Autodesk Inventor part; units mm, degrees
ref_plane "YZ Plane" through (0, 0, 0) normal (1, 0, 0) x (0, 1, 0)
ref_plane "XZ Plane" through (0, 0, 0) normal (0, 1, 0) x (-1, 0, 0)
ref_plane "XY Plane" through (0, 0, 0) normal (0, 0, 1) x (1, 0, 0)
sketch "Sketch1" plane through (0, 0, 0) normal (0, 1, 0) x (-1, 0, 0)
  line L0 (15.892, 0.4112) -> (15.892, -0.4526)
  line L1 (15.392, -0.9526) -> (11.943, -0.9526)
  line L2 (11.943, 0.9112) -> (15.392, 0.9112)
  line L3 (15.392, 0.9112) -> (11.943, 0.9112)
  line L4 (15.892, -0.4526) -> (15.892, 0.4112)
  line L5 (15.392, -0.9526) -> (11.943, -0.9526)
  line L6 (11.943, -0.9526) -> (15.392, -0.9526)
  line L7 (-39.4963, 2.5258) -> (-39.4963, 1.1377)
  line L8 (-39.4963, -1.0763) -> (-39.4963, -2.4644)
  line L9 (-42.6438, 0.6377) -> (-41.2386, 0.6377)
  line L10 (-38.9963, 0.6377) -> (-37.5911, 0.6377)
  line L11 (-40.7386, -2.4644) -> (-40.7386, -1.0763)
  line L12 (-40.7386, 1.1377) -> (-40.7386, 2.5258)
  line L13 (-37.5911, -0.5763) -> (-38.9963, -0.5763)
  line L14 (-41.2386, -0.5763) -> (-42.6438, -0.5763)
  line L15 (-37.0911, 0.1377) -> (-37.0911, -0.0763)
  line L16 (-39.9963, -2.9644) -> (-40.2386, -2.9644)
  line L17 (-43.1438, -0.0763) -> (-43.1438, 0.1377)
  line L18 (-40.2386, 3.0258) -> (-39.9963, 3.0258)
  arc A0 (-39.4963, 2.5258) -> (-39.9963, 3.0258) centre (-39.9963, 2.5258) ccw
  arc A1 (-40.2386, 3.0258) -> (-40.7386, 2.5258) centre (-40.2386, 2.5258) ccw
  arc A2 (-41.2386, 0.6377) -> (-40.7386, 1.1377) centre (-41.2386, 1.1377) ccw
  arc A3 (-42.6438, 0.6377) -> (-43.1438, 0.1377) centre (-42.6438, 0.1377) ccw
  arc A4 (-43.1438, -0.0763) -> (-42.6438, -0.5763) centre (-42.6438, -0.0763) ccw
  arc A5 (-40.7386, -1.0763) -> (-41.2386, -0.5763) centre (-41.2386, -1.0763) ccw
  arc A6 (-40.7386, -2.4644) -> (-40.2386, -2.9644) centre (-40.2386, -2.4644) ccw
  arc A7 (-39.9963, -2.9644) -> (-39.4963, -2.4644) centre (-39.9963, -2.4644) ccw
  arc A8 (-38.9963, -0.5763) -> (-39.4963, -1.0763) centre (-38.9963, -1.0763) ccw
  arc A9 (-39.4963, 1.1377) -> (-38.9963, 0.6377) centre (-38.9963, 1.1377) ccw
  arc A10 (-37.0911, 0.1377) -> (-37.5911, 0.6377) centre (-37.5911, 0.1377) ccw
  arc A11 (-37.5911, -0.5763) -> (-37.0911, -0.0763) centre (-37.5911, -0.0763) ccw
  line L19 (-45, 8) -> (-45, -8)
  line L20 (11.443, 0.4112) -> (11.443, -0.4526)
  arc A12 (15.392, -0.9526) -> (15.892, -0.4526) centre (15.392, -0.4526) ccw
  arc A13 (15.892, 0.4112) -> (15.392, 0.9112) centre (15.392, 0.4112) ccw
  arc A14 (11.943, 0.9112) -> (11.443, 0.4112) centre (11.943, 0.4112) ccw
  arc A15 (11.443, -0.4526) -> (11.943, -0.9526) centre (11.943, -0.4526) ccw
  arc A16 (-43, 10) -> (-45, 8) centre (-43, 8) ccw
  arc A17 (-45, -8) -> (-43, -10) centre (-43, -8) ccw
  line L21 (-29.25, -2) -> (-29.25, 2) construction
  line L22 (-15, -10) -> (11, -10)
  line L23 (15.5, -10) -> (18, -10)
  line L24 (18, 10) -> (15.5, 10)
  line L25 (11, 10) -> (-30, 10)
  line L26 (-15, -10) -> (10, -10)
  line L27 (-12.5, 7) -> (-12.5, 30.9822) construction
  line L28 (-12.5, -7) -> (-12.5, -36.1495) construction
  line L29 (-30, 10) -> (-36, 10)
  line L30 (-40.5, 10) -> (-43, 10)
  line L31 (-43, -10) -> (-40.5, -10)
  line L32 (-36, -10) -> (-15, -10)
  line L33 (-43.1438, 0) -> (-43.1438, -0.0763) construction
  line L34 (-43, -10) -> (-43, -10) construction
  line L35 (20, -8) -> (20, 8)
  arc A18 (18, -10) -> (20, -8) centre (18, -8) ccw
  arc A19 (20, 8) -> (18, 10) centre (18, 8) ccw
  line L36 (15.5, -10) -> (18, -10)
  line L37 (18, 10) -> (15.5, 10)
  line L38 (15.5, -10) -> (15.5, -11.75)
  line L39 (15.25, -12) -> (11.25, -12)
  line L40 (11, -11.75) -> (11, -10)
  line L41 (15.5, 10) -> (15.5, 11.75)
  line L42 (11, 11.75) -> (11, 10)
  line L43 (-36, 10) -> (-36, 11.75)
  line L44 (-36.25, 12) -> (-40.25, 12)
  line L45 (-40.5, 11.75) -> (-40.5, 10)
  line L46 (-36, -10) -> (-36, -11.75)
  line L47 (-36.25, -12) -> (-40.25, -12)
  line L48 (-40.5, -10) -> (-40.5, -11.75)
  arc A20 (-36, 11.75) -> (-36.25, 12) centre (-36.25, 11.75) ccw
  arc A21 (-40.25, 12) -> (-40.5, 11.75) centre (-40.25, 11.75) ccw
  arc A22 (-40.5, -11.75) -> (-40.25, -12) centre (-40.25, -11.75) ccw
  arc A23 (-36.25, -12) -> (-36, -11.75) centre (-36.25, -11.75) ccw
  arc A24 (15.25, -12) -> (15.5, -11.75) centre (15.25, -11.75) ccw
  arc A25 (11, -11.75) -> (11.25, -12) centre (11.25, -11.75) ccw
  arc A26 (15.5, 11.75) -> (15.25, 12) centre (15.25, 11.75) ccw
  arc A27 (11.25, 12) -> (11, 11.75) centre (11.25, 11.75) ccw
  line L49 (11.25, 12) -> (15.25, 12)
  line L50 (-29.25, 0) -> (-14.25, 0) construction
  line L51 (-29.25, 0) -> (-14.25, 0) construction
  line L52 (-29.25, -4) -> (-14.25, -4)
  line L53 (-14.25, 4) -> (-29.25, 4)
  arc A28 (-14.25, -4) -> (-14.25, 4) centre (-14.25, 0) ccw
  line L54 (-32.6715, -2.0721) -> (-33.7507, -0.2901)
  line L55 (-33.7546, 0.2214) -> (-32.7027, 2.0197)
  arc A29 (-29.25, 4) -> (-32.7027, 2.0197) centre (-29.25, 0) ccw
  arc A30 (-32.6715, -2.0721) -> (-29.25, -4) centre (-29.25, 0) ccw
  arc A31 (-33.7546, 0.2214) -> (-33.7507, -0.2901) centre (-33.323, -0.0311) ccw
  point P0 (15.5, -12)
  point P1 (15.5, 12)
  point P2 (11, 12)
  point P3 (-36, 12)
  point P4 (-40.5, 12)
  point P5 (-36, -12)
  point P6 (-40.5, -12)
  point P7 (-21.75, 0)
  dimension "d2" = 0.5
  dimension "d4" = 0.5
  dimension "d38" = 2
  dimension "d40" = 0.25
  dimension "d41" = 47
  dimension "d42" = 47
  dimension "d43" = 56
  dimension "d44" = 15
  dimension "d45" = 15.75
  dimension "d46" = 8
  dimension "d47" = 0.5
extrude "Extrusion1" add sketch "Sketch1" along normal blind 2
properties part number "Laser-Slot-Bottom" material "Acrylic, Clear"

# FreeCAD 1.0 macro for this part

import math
import FreeCAD as App
import Part
import Sketcher
from FreeCAD import Vector
Q = App.Units.Quantity

doc = App.newDocument("Part")
params = doc.addObject("Spreadsheet::Sheet", "Params")
for row, (alias, value) in enumerate([
    ("sketch1_radius", "2 mm"),
    ("sketch1_radius2", "4 mm"),
    ("sketch1_radius3", "0.5 mm"),
    ("sketch1_width", "47 mm"),
    ("sketch1_width2", "15 mm"),
    ("pad1_length", "2 mm"),
], start=1):
    params.set(f"A{row}", alias)
    params.set(f"B{row}", "=" + value)
    params.setAlias(f"B{row}", alias)

body = doc.addObject("PartDesign::Body", "Body")

sketch1 = doc.addObject("Sketcher::SketchObject", "Sketch")
body.addObject(sketch1)
sketch1.AttachmentSupport = (doc.XZ_Plane, [""])
sketch1.MapMode = "FlatFace"
sketch1.addGeometry([
    Part.ArcOfCircle(Part.Circle(Vector(43, 8, 0), Vector(0, 0, 1), 2), math.radians(0), math.radians(90)),
    Part.LineSegment(Vector(45, 8, 0), Vector(45, -8, 0)),
    Part.ArcOfCircle(Part.Circle(Vector(43, -8, 0), Vector(0, 0, 1), 2), math.radians(-90), math.radians(0)),
    Part.LineSegment(Vector(43, -10, 0), Vector(40.5, -10, 0)),
    Part.LineSegment(Vector(40.5, -10, 0), Vector(40.5, -11.75, 0)),
    Part.ArcOfCircle(Part.Circle(Vector(40.25, -11.75, 0), Vector(0, 0, 1), 0.25), math.radians(-90), math.radians(0)),
    Part.LineSegment(Vector(40.25, -12, 0), Vector(36.25, -12, 0)),
    Part.ArcOfCircle(Part.Circle(Vector(36.25, -11.75, 0), Vector(0, 0, 1), 0.25), math.radians(180), math.radians(270)),
    Part.LineSegment(Vector(36, -11.75, 0), Vector(36, -10, 0)),
    Part.LineSegment(Vector(36, -10, 0), Vector(-11, -10, 0)),
    Part.LineSegment(Vector(-11, -10, 0), Vector(-11, -11.75, 0)),
    Part.ArcOfCircle(Part.Circle(Vector(-11.25, -11.75, 0), Vector(0, 0, 1), 0.25), math.radians(-90), math.radians(0)),
    Part.LineSegment(Vector(-11.25, -12, 0), Vector(-15.25, -12, 0)),
    Part.ArcOfCircle(Part.Circle(Vector(-15.25, -11.75, 0), Vector(0, 0, 1), 0.25), math.radians(180), math.radians(270)),
    Part.LineSegment(Vector(-15.5, -11.75, 0), Vector(-15.5, -10, 0)),
    Part.LineSegment(Vector(-15.5, -10, 0), Vector(-18, -10, 0)),
    Part.ArcOfCircle(Part.Circle(Vector(-18, -8, 0), Vector(0, 0, 1), 2), math.radians(180), math.radians(270)),
    Part.LineSegment(Vector(-20, -8, 0), Vector(-20, 8, 0)),
    Part.ArcOfCircle(Part.Circle(Vector(-18, 8, 0), Vector(0, 0, 1), 2), math.radians(90), math.radians(180)),
    Part.LineSegment(Vector(-18, 10, 0), Vector(-15.5, 10, 0)),
    Part.LineSegment(Vector(-15.5, 10, 0), Vector(-15.5, 11.75, 0)),
    Part.ArcOfCircle(Part.Circle(Vector(-15.25, 11.75, 0), Vector(0, 0, 1), 0.25), math.radians(90), math.radians(180)),
    Part.LineSegment(Vector(-15.25, 12, 0), Vector(-11.25, 12, 0)),
    Part.ArcOfCircle(Part.Circle(Vector(-11.25, 11.75, 0), Vector(0, 0, 1), 0.25), math.radians(0), math.radians(90)),
    Part.LineSegment(Vector(-11, 11.75, 0), Vector(-11, 10, 0)),
    Part.LineSegment(Vector(-11, 10, 0), Vector(36, 10, 0)),
    Part.LineSegment(Vector(36, 10, 0), Vector(36, 11.75, 0)),
    Part.ArcOfCircle(Part.Circle(Vector(36.25, 11.75, 0), Vector(0, 0, 1), 0.25), math.radians(90), math.radians(180)),
    Part.LineSegment(Vector(36.25, 12, 0), Vector(40.25, 12, 0)),
    Part.ArcOfCircle(Part.Circle(Vector(40.25, 11.75, 0), Vector(0, 0, 1), 0.25), math.radians(0), math.radians(90)),
    Part.LineSegment(Vector(40.5, 11.75, 0), Vector(40.5, 10, 0)),
    Part.LineSegment(Vector(40.5, 10, 0), Vector(43, 10, 0)),
    Part.LineSegment(Vector(14.25, -4, 0), Vector(29.25, -4, 0)),
    Part.ArcOfCircle(Part.Circle(Vector(29.25, 0, 0), Vector(0, 0, 1), 4), math.radians(-90), math.radians(-31)),
    Part.LineSegment(Vector(32.67, -2.07, 0), Vector(33.75, -0.29, 0)),
    Part.ArcOfCircle(Part.Circle(Vector(33.32, -0.03, 0), Vector(0, 0, 1), 0.5), math.radians(-31), math.radians(30)),
    Part.LineSegment(Vector(33.75, 0.22, 0), Vector(32.7, 2.02, 0)),
    Part.ArcOfCircle(Part.Circle(Vector(29.25, 0, 0), Vector(0, 0, 1), 4), math.radians(30), math.radians(90)),
    Part.LineSegment(Vector(29.25, 4, 0), Vector(14.25, 4, 0)),
    Part.ArcOfCircle(Part.Circle(Vector(14.25, 0, 0), Vector(0, 0, 1), 4), math.radians(90), math.radians(270)),
    Part.ArcOfCircle(Part.Circle(Vector(-15.39, 0.41, 0), Vector(0, 0, 1), 0.5), math.radians(90), math.radians(180)),
    Part.LineSegment(Vector(-15.89, 0.41, 0), Vector(-15.89, -0.45, 0)),
    Part.ArcOfCircle(Part.Circle(Vector(-15.39, -0.45, 0), Vector(0, 0, 1), 0.5), math.radians(180), math.radians(270)),
    Part.LineSegment(Vector(-15.39, -0.95, 0), Vector(-11.94, -0.95, 0)),
    Part.ArcOfCircle(Part.Circle(Vector(-11.94, -0.45, 0), Vector(0, 0, 1), 0.5), math.radians(-90), math.radians(0)),
    Part.LineSegment(Vector(-11.44, -0.45, 0), Vector(-11.44, 0.41, 0)),
    Part.ArcOfCircle(Part.Circle(Vector(-11.94, 0.41, 0), Vector(0, 0, 1), 0.5), math.radians(0), math.radians(90)),
    Part.LineSegment(Vector(-11.94, 0.91, 0), Vector(-15.39, 0.91, 0)),
    Part.ArcOfCircle(Part.Circle(Vector(40, 2.53, 0), Vector(0, 0, 1), 0.5), math.radians(90), math.radians(180)),
    Part.LineSegment(Vector(39.5, 2.53, 0), Vector(39.5, 1.14, 0)),
    Part.ArcOfCircle(Part.Circle(Vector(39, 1.14, 0), Vector(0, 0, 1), 0.5), math.radians(-90), math.radians(0)),
    Part.LineSegment(Vector(39, 0.64, 0), Vector(37.59, 0.64, 0)),
    Part.ArcOfCircle(Part.Circle(Vector(37.59, 0.14, 0), Vector(0, 0, 1), 0.5), math.radians(90), math.radians(180)),
    Part.LineSegment(Vector(37.09, 0.14, 0), Vector(37.09, -0.08, 0)),
    Part.ArcOfCircle(Part.Circle(Vector(37.59, -0.08, 0), Vector(0, 0, 1), 0.5), math.radians(180), math.radians(270)),
    Part.LineSegment(Vector(37.59, -0.58, 0), Vector(39, -0.58, 0)),
    Part.ArcOfCircle(Part.Circle(Vector(39, -1.08, 0), Vector(0, 0, 1), 0.5), math.radians(0), math.radians(90)),
    Part.LineSegment(Vector(39.5, -1.08, 0), Vector(39.5, -2.46, 0)),
    Part.ArcOfCircle(Part.Circle(Vector(40, -2.46, 0), Vector(0, 0, 1), 0.5), math.radians(180), math.radians(270)),
    Part.LineSegment(Vector(40, -2.96, 0), Vector(40.24, -2.96, 0)),
    Part.ArcOfCircle(Part.Circle(Vector(40.24, -2.46, 0), Vector(0, 0, 1), 0.5), math.radians(-90), math.radians(0)),
    Part.LineSegment(Vector(40.74, -2.46, 0), Vector(40.74, -1.08, 0)),
    Part.ArcOfCircle(Part.Circle(Vector(41.24, -1.08, 0), Vector(0, 0, 1), 0.5), math.radians(90), math.radians(180)),
    Part.LineSegment(Vector(41.24, -0.58, 0), Vector(42.64, -0.58, 0)),
    Part.ArcOfCircle(Part.Circle(Vector(42.64, -0.08, 0), Vector(0, 0, 1), 0.5), math.radians(-90), math.radians(0)),
    Part.LineSegment(Vector(43.14, -0.08, 0), Vector(43.14, 0.14, 0)),
    Part.ArcOfCircle(Part.Circle(Vector(42.64, 0.14, 0), Vector(0, 0, 1), 0.5), math.radians(0), math.radians(90)),
    Part.LineSegment(Vector(42.64, 0.64, 0), Vector(41.24, 0.64, 0)),
    Part.ArcOfCircle(Part.Circle(Vector(41.24, 1.14, 0), Vector(0, 0, 1), 0.5), math.radians(180), math.radians(270)),
    Part.LineSegment(Vector(40.74, 1.14, 0), Vector(40.74, 2.53, 0)),
    Part.ArcOfCircle(Part.Circle(Vector(40.24, 2.53, 0), Vector(0, 0, 1), 0.5), math.radians(0), math.radians(90)),
    Part.LineSegment(Vector(40.24, 3.03, 0), Vector(40, 3.03, 0)),
], False)
sketch1.addConstraint([
    Sketcher.Constraint("Tangent", 0, 1, 1, 1),
    Sketcher.Constraint("Tangent", 1, 2, 2, 2),
    Sketcher.Constraint("Tangent", 2, 1, 3, 1),
    Sketcher.Constraint("Coincident", 3, 2, 4, 1),
    Sketcher.Constraint("Tangent", 4, 2, 5, 2),
    Sketcher.Constraint("Tangent", 5, 1, 6, 1),
    Sketcher.Constraint("Tangent", 6, 2, 7, 2),
    Sketcher.Constraint("Tangent", 7, 1, 8, 1),
    Sketcher.Constraint("Coincident", 8, 2, 9, 1),
    Sketcher.Constraint("Coincident", 9, 2, 10, 1),
    Sketcher.Constraint("Tangent", 10, 2, 11, 2),
    Sketcher.Constraint("Tangent", 11, 1, 12, 1),
    Sketcher.Constraint("Tangent", 12, 2, 13, 2),
    Sketcher.Constraint("Tangent", 13, 1, 14, 1),
    Sketcher.Constraint("Coincident", 14, 2, 15, 1),
    Sketcher.Constraint("Tangent", 15, 2, 16, 2),
    Sketcher.Constraint("Tangent", 16, 1, 17, 1),
    Sketcher.Constraint("Tangent", 17, 2, 18, 2),
    Sketcher.Constraint("Tangent", 18, 1, 19, 1),
    Sketcher.Constraint("Coincident", 19, 2, 20, 1),
    Sketcher.Constraint("Tangent", 20, 2, 21, 2),
    Sketcher.Constraint("Tangent", 21, 1, 22, 1),
    Sketcher.Constraint("Tangent", 22, 2, 23, 2),
    Sketcher.Constraint("Tangent", 23, 1, 24, 1),
    Sketcher.Constraint("Coincident", 24, 2, 25, 1),
    Sketcher.Constraint("Coincident", 25, 2, 26, 1),
    Sketcher.Constraint("Tangent", 26, 2, 27, 2),
    Sketcher.Constraint("Tangent", 27, 1, 28, 1),
    Sketcher.Constraint("Tangent", 28, 2, 29, 2),
    Sketcher.Constraint("Tangent", 29, 1, 30, 1),
    Sketcher.Constraint("Coincident", 30, 2, 31, 1),
    Sketcher.Constraint("Tangent", 31, 2, 0, 2),
    Sketcher.Constraint("Tangent", 32, 2, 33, 1),
    Sketcher.Constraint("Tangent", 33, 2, 34, 1),
    Sketcher.Constraint("Tangent", 34, 2, 35, 1),
    Sketcher.Constraint("Tangent", 35, 2, 36, 1),
    Sketcher.Constraint("Tangent", 36, 2, 37, 1),
    Sketcher.Constraint("Tangent", 37, 2, 38, 1),
    Sketcher.Constraint("Tangent", 38, 2, 39, 1),
    Sketcher.Constraint("Tangent", 39, 2, 32, 1),
    Sketcher.Constraint("Tangent", 40, 2, 41, 1),
    Sketcher.Constraint("Tangent", 41, 2, 42, 1),
    Sketcher.Constraint("Tangent", 42, 2, 43, 1),
    Sketcher.Constraint("Tangent", 43, 2, 44, 1),
    Sketcher.Constraint("Tangent", 44, 2, 45, 1),
    Sketcher.Constraint("Tangent", 45, 2, 46, 1),
    Sketcher.Constraint("Tangent", 46, 2, 47, 1),
    Sketcher.Constraint("Tangent", 47, 2, 40, 1),
    Sketcher.Constraint("Tangent", 48, 2, 49, 1),
    Sketcher.Constraint("Tangent", 49, 2, 50, 2),
    Sketcher.Constraint("Tangent", 50, 1, 51, 1),
    Sketcher.Constraint("Tangent", 51, 2, 52, 1),
    Sketcher.Constraint("Tangent", 52, 2, 53, 1),
    Sketcher.Constraint("Tangent", 53, 2, 54, 1),
    Sketcher.Constraint("Tangent", 54, 2, 55, 1),
    Sketcher.Constraint("Tangent", 55, 2, 56, 2),
    Sketcher.Constraint("Tangent", 56, 1, 57, 1),
    Sketcher.Constraint("Tangent", 57, 2, 58, 1),
    Sketcher.Constraint("Tangent", 58, 2, 59, 1),
    Sketcher.Constraint("Tangent", 59, 2, 60, 1),
    Sketcher.Constraint("Tangent", 60, 2, 61, 1),
    Sketcher.Constraint("Tangent", 61, 2, 62, 2),
    Sketcher.Constraint("Tangent", 62, 1, 63, 1),
    Sketcher.Constraint("Tangent", 63, 2, 64, 1),
    Sketcher.Constraint("Tangent", 64, 2, 65, 1),
    Sketcher.Constraint("Tangent", 65, 2, 66, 1),
    Sketcher.Constraint("Tangent", 66, 2, 67, 1),
    Sketcher.Constraint("Tangent", 67, 2, 68, 2),
    Sketcher.Constraint("Tangent", 68, 1, 69, 1),
    Sketcher.Constraint("Tangent", 69, 2, 70, 1),
    Sketcher.Constraint("Tangent", 70, 2, 71, 1),
    Sketcher.Constraint("Tangent", 71, 2, 48, 1),
    Sketcher.Constraint("Vertical", 1),
    Sketcher.Constraint("Horizontal", 3),
    Sketcher.Constraint("Vertical", 4),
    Sketcher.Constraint("Horizontal", 6),
    Sketcher.Constraint("Vertical", 8),
    Sketcher.Constraint("Horizontal", 9),
    Sketcher.Constraint("Vertical", 10),
    Sketcher.Constraint("Horizontal", 12),
    Sketcher.Constraint("Vertical", 14),
    Sketcher.Constraint("Horizontal", 15),
    Sketcher.Constraint("Vertical", 17),
    Sketcher.Constraint("Horizontal", 19),
    Sketcher.Constraint("Vertical", 20),
    Sketcher.Constraint("Horizontal", 22),
    Sketcher.Constraint("Vertical", 24),
    Sketcher.Constraint("Horizontal", 25),
    Sketcher.Constraint("Vertical", 26),
    Sketcher.Constraint("Horizontal", 28),
    Sketcher.Constraint("Vertical", 30),
    Sketcher.Constraint("Horizontal", 31),
    Sketcher.Constraint("Horizontal", 32),
    Sketcher.Constraint("Horizontal", 38),
    Sketcher.Constraint("Vertical", 41),
    Sketcher.Constraint("Horizontal", 43),
    Sketcher.Constraint("Vertical", 45),
    Sketcher.Constraint("Horizontal", 47),
    Sketcher.Constraint("Vertical", 49),
    Sketcher.Constraint("Horizontal", 51),
    Sketcher.Constraint("Vertical", 53),
    Sketcher.Constraint("Horizontal", 55),
    Sketcher.Constraint("Vertical", 57),
    Sketcher.Constraint("Horizontal", 59),
    Sketcher.Constraint("Vertical", 61),
    Sketcher.Constraint("Horizontal", 63),
    Sketcher.Constraint("Vertical", 65),
    Sketcher.Constraint("Horizontal", 67),
    Sketcher.Constraint("Vertical", 69),
    Sketcher.Constraint("Horizontal", 71),
    Sketcher.Constraint("Coincident", 37, 3, 33, 3),
    Sketcher.Constraint("Equal", 0, 2),
    Sketcher.Constraint("Equal", 5, 7),
    Sketcher.Constraint("Equal", 7, 11),
    Sketcher.Constraint("Equal", 11, 13),
    Sketcher.Constraint("Equal", 2, 16),
    Sketcher.Constraint("Equal", 16, 18),
    Sketcher.Constraint("Equal", 13, 21),
    Sketcher.Constraint("Equal", 21, 23),
    Sketcher.Constraint("Equal", 23, 27),
    Sketcher.Constraint("Equal", 27, 29),
    Sketcher.Constraint("Equal", 33, 37),
    Sketcher.Constraint("Equal", 35, 40),
    Sketcher.Constraint("Equal", 40, 42),
    Sketcher.Constraint("Equal", 42, 44),
    Sketcher.Constraint("Equal", 44, 46),
    Sketcher.Constraint("Equal", 46, 48),
    Sketcher.Constraint("Equal", 48, 50),
    Sketcher.Constraint("Equal", 50, 52),
    Sketcher.Constraint("Equal", 52, 54),
    Sketcher.Constraint("Equal", 54, 56),
    Sketcher.Constraint("Equal", 56, 58),
    Sketcher.Constraint("Equal", 58, 60),
    Sketcher.Constraint("Equal", 60, 62),
    Sketcher.Constraint("Equal", 62, 64),
    Sketcher.Constraint("Equal", 64, 66),
    Sketcher.Constraint("Equal", 66, 68),
    Sketcher.Constraint("Equal", 68, 70),
    Sketcher.Constraint("Symmetric", 13, 3, 21, 3, -1),
    Sketcher.Constraint("Symmetric", 7, 3, 27, 3, -1),
    Sketcher.Constraint("Symmetric", 9, 2, 24, 2, -1),
    Sketcher.Constraint("Symmetric", 3, 2, 30, 2, -1),
    Sketcher.Constraint("PointOnObject", 33, 3, -1),
    Sketcher.Constraint("Horizontal", 7, 3, 11, 3),
    Sketcher.Constraint("Horizontal", 2, 3, 16, 3),
    Sketcher.Constraint("Horizontal", 0, 3, 18, 3),
    Sketcher.Constraint("Horizontal", 56, 3, 62, 3),
    Sketcher.Constraint("Horizontal", 52, 3, 66, 3),
    Sketcher.Constraint("Horizontal", 3, 2, 8, 2),
    Sketcher.Constraint("Vertical", 50, 3, 56, 3),
    Sketcher.Constraint("Vertical", 62, 3, 68, 3),
    Sketcher.Constraint("Equal", 6, 12),
    Sketcher.Constraint("Equal", 3, 15),
    Sketcher.Constraint("Equal", 55, 63),
    Sketcher.Constraint("Equal", 49, 57),
    Sketcher.Constraint("Radius", 0, Q("2 mm")),
    Sketcher.Constraint("Radius", 33, Q("4 mm")),
    Sketcher.Constraint("Radius", 35, Q("0.5 mm")),
    Sketcher.Constraint("DistanceX", 9, 2, 9, 1, Q("47 mm")),
    Sketcher.Constraint("DistanceX", 32, 1, 32, 2, Q("15 mm")),
    Sketcher.Constraint("Radius", 5, Q("0.25 mm")),
    Sketcher.Constraint("DistanceY", -1, 1, 0, 3, Q("8 mm")),
    Sketcher.Constraint("DistanceX", 6, 2, 6, 1, Q("4 mm")),
    Sketcher.Constraint("DistanceX", 3, 2, 3, 1, Q("2.5 mm")),
    Sketcher.Constraint("DistanceX", -1, 1, 0, 3, Q("43 mm")),
    Sketcher.Constraint("DistanceY", 5, 1, -1, 1, Q("12 mm")),
    Sketcher.Constraint("Angle", 34, Q("58.8004 deg")),
    Sketcher.Constraint("DistanceX", 43, 1, 43, 2, Q("3.449 mm")),
    Sketcher.Constraint("DistanceY", 49, 2, 49, 1, Q("1.388 mm")),
    Sketcher.Constraint("DistanceY", 53, 2, 53, 1, Q("0.214 mm")),
    Sketcher.Constraint("DistanceX", -1, 1, 33, 3, Q("29.25 mm")),
    Sketcher.Constraint("DistanceY", 34, 2, -1, 1, Q("0.29 mm")),
    Sketcher.Constraint("DistanceX", 51, 2, 51, 1, Q("1.4052 mm")),
    Sketcher.Constraint("DistanceX", 59, 1, 59, 2, Q("0.2423 mm")),
    Sketcher.Constraint("DistanceY", 41, 2, 41, 1, Q("0.8638 mm")),
    Sketcher.Constraint("DistanceX", 40, 3, -1, 1, Q("15.392 mm")),
    Sketcher.Constraint("DistanceX", -1, 1, 52, 3, Q("37.591 mm")),
    Sketcher.Constraint("DistanceY", -1, 1, 40, 3, Q("0.4112 mm")),
    Sketcher.Constraint("DistanceY", -1, 1, 48, 3, Q("2.5258 mm")),
])
sketch1.setExpression("Constraints[155]", "Params.sketch1_radius")
sketch1.setExpression("Constraints[156]", "Params.sketch1_radius2")
sketch1.setExpression("Constraints[157]", "Params.sketch1_radius3")
sketch1.setExpression("Constraints[158]", "Params.sketch1_width")
sketch1.setExpression("Constraints[159]", "Params.sketch1_width2")
pad1 = doc.addObject("PartDesign::Pad", "Pad")
body.addObject(pad1)
pad1.Profile = sketch1
pad1.setExpression("Length", "Params.pad1_length")
pad1.Reversed = True

doc.recompute()
